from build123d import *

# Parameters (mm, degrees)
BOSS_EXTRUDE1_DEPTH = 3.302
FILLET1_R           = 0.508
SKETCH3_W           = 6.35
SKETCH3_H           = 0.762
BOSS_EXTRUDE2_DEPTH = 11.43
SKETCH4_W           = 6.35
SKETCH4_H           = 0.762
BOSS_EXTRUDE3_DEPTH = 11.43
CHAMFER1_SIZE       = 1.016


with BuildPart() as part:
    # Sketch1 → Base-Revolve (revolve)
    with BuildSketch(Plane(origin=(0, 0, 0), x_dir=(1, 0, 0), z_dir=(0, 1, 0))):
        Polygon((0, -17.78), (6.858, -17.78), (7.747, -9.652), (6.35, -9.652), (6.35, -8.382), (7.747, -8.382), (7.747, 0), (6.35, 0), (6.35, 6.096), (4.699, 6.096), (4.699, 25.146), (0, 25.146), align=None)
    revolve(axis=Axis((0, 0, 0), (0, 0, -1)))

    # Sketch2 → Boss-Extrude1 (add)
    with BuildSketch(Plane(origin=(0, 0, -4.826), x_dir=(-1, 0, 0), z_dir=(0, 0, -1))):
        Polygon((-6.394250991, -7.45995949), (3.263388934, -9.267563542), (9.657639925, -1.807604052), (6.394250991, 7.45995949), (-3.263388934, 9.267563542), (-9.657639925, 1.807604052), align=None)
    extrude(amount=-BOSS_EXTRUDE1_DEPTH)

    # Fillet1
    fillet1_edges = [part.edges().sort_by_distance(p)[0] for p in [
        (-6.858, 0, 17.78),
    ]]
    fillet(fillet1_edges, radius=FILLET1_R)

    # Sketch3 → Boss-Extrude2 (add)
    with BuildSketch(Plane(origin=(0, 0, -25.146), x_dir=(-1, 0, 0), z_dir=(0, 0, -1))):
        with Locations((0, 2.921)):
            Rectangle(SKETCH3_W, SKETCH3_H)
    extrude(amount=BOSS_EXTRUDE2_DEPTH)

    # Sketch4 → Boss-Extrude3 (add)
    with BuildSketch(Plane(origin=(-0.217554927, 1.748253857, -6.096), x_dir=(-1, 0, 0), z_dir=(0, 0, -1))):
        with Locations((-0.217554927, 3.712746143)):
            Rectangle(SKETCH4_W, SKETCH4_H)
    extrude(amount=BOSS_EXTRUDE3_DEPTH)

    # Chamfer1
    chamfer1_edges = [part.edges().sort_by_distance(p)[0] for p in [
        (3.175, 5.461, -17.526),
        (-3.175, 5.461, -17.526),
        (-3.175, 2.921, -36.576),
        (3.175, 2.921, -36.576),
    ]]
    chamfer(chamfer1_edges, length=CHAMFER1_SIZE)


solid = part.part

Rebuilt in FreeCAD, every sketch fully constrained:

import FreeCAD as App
import Part
import Sketcher

V = App.Vector
Q = App.Units.Quantity


def edges_at(feature, points):
    """Names of the edges that pass closest to the given points."""
    edges = feature.Shape.Edges
    near = lambda p: min(range(len(edges)), key=lambda i: edges[i].distToShape(Part.Vertex(*p))[0])
    return sorted({f"Edge{near(p) + 1}" for p in points})


def add_polygon(sketch, points):
    """Adds a closed chain of lines whose ends are joined by coincident constraints."""
    first, n = sketch.GeometryCount, len(points)
    for a, b in zip(points, points[1:] + points[:1]):
        sketch.addGeometry(Part.LineSegment(App.Vector(*a, 0), App.Vector(*b, 0)), False)
    for i in range(n):
        sketch.addConstraint(Sketcher.Constraint("Coincident", first + i, 2, first + (i + 1) % n, 1))

doc = App.newDocument("Part")
body = doc.addObject("PartDesign::Body", "Body")

# Sketch on XZ plane
sketch1 = body.newObject("Sketcher::SketchObject", "Sketch")
sketch1.AttachmentSupport = (doc.getObject("XZ_Plane"), [""])
sketch1.MapMode = "FlatFace"
add_polygon(sketch1, [(0, 17.8), (6.9, 17.8), (7.7, 9.7), (6.3, 9.7), (6.3, 8.4), (7.7, 8.4), (7.7, 0), (6.3, 0), (6.3, -6.1), (4.7, -6.1), (4.7, -25.1), (0, -25.1)])  # lines 0-11
sketch1.addConstraint(Sketcher.Constraint("Horizontal", 0))
sketch1.addConstraint(Sketcher.Constraint("Horizontal", 2))
sketch1.addConstraint(Sketcher.Constraint("Vertical", 3))
sketch1.addConstraint(Sketcher.Constraint("Horizontal", 4))
sketch1.addConstraint(Sketcher.Constraint("Vertical", 5))
sketch1.addConstraint(Sketcher.Constraint("Horizontal", 6))
sketch1.addConstraint(Sketcher.Constraint("Vertical", 7))
sketch1.addConstraint(Sketcher.Constraint("Horizontal", 8))
sketch1.addConstraint(Sketcher.Constraint("Vertical", 9))
sketch1.addConstraint(Sketcher.Constraint("Horizontal", 10))
sketch1.addConstraint(Sketcher.Constraint("Vertical", 11))
sketch1.addConstraint(Sketcher.Constraint("PointOnObject", 5, 2, -1))
sketch1.addConstraint(Sketcher.Constraint("PointOnObject", 10, 2, -2))
sketch1.addConstraint(Sketcher.Constraint("Vertical", 1, 2, 4, 2))
sketch1.addConstraint(Sketcher.Constraint("Vertical", 3, 2, 6, 2))
sketch1.addConstraint(Sketcher.Constraint("DistanceX", 0, 1, 0, 2, Q("0.27 in")))
sketch1.addConstraint(Sketcher.Constraint("DistanceY", 3, 2, 3, 1, Q("0.05 in")))
sketch1.addConstraint(Sketcher.Constraint("DistanceY", 5, 2, 5, 1, Q("0.33 in")))
sketch1.addConstraint(Sketcher.Constraint("DistanceY", 7, 2, 7, 1, Q("0.24 in")))
sketch1.addConstraint(Sketcher.Constraint("DistanceY", 9, 2, 9, 1, Q("0.75 in")))
sketch1.addConstraint(Sketcher.Constraint("DistanceY", 11, 1, 11, 2, Q("1.69 in")))
sketch1.addConstraint(Sketcher.Constraint("DistanceX", 2, 2, 2, 1, Q("0.055 in")))
sketch1.addConstraint(Sketcher.Constraint("DistanceX", 8, 2, 8, 1, Q("0.065 in")))
sketch1.addConstraint(Sketcher.Constraint("DistanceX", 10, 2, 10, 1, Q("0.185 in")))
revolution = body.newObject("PartDesign::Revolution", "Revolution")
revolution.Profile = sketch1
revolution.ReferenceAxis = (sketch1, ["V_Axis"])
revolution.Angle = 360

# Sketch on XY plane
sketch2 = body.newObject("Sketcher::SketchObject", "Sketch001")
sketch2.AttachmentSupport = (doc.getObject("XY_Plane"), [""])
sketch2.MapMode = "FlatFace"
sketch2.AttachmentOffset = App.Placement(V(0, 0, -0.19 * 25.4), App.Rotation())
add_polygon(sketch2, [(6, -7), (-3, -9), (-10, -2), (-6, 7), (3, 9), (10, 2)])  # lines 0-5
sketch2.addConstraint(Sketcher.Constraint("Symmetric", 0, 2, 3, 2, -1, 1))
sketch2.addConstraint(Sketcher.Constraint("Symmetric", 1, 2, 4, 2, -1, 1))
sketch2.addConstraint(Sketcher.Constraint("Symmetric", 2, 2, 5, 2, -1, 1))
sketch2.addConstraint(Sketcher.Constraint("Equal", 0, 1))
sketch2.addConstraint(Sketcher.Constraint("Equal", 1, 2))
sketch2.addConstraint(Sketcher.Constraint("DistanceX", 2, 2, 5, 2, 12.788502))
sketch2.addConstraint(Sketcher.Constraint("DistanceX", 0, 2, -1, 1, 3.263389))
sketch2.addConstraint(Sketcher.Constraint("DistanceX", 1, 2, -1, 1, 9.65764))
sketch2.addConstraint(Sketcher.Constraint("DistanceY", -1, 1, 2, 2, 7.459959))
pad1 = body.newObject("PartDesign::Pad", "Pad")
pad1.Profile = sketch2
pad1.Length = Q("0.13 in")
doc.recompute()

fillet = body.newObject("PartDesign::Fillet", "Fillet")
fillet.Base = (pad1, edges_at(pad1, [(-6.858, 0, 17.78)]))
fillet.Radius = Q("0.02 in")

# Sketch on XY plane
sketch3 = body.newObject("Sketcher::SketchObject", "Sketch002")
sketch3.AttachmentSupport = (doc.getObject("XY_Plane"), [""])
sketch3.MapMode = "FlatFace"
sketch3.AttachmentOffset = App.Placement(V(0, 0, -0.99 * 25.4), App.Rotation())
add_polygon(sketch3, [(3.2, 3.3), (3.2, 2.5), (-3.2, 2.5), (-3.2, 3.3)])  # lines 0-3
sketch3.addConstraint(Sketcher.Constraint("Vertical", 0))
sketch3.addConstraint(Sketcher.Constraint("Horizontal", 1))
sketch3.addConstraint(Sketcher.Constraint("Vertical", 2))
sketch3.addConstraint(Sketcher.Constraint("Horizontal", 3))
sketch3.addConstraint(Sketcher.Constraint("DistanceX", 1, 2, 1, 1, Q("0.25 in")))
sketch3.addConstraint(Sketcher.Constraint("DistanceY", 0, 2, 0, 1, Q("0.03 in")))
sketch3.addConstraint(Sketcher.Constraint("DistanceY", -1, 1, 0, 2, Q("0.1 in")))
sketch3.addConstraint(Sketcher.Constraint("DistanceX", -1, 1, 0, 2, Q("0.125 in")))
pad2 = body.newObject("PartDesign::Pad", "Pad001")
pad2.Profile = sketch3
pad2.Length = Q("0.45 in")
pad2.Reversed = True

# Sketch on XY plane
sketch4 = body.newObject("Sketcher::SketchObject", "Sketch003")
sketch4.AttachmentSupport = (doc.getObject("XY_Plane"), [""])
sketch4.MapMode = "FlatFace"
sketch4.AttachmentOffset = App.Placement(V(0, 0, -0.24 * 25.4), App.Rotation())
add_polygon(sketch4, [(3.2, 5.8), (3.2, 5.1), (-3.2, 5.1), (-3.2, 5.8)])  # lines 0-3
sketch4.addConstraint(Sketcher.Constraint("Vertical", 0))
sketch4.addConstraint(Sketcher.Constraint("Horizontal", 1))
sketch4.addConstraint(Sketcher.Constraint("Vertical", 2))
sketch4.addConstraint(Sketcher.Constraint("Horizontal", 3))
sketch4.addConstraint(Sketcher.Constraint("DistanceX", 1, 2, 1, 1, Q("0.25 in")))
sketch4.addConstraint(Sketcher.Constraint("DistanceY", 0, 2, 0, 1, Q("0.03 in")))
sketch4.addConstraint(Sketcher.Constraint("DistanceY", -1, 1, 0, 2, Q("0.2 in")))
sketch4.addConstraint(Sketcher.Constraint("DistanceX", -1, 1, 0, 2, Q("0.125 in")))
pad3 = body.newObject("PartDesign::Pad", "Pad002")
pad3.Profile = sketch4
pad3.Length = Q("0.45 in")
pad3.Reversed = True
doc.recompute()

chamfer = body.newObject("PartDesign::Chamfer", "Chamfer")
chamfer.Base = (pad3, edges_at(pad3, [
    (3.175, 5.461, -17.526),
    (-3.175, 5.461, -17.526),
    (-3.175, 2.921, -36.576),
    (3.175, 2.921, -36.576),
]))
chamfer.Size = Q("0.04 in")

doc.recompute()
